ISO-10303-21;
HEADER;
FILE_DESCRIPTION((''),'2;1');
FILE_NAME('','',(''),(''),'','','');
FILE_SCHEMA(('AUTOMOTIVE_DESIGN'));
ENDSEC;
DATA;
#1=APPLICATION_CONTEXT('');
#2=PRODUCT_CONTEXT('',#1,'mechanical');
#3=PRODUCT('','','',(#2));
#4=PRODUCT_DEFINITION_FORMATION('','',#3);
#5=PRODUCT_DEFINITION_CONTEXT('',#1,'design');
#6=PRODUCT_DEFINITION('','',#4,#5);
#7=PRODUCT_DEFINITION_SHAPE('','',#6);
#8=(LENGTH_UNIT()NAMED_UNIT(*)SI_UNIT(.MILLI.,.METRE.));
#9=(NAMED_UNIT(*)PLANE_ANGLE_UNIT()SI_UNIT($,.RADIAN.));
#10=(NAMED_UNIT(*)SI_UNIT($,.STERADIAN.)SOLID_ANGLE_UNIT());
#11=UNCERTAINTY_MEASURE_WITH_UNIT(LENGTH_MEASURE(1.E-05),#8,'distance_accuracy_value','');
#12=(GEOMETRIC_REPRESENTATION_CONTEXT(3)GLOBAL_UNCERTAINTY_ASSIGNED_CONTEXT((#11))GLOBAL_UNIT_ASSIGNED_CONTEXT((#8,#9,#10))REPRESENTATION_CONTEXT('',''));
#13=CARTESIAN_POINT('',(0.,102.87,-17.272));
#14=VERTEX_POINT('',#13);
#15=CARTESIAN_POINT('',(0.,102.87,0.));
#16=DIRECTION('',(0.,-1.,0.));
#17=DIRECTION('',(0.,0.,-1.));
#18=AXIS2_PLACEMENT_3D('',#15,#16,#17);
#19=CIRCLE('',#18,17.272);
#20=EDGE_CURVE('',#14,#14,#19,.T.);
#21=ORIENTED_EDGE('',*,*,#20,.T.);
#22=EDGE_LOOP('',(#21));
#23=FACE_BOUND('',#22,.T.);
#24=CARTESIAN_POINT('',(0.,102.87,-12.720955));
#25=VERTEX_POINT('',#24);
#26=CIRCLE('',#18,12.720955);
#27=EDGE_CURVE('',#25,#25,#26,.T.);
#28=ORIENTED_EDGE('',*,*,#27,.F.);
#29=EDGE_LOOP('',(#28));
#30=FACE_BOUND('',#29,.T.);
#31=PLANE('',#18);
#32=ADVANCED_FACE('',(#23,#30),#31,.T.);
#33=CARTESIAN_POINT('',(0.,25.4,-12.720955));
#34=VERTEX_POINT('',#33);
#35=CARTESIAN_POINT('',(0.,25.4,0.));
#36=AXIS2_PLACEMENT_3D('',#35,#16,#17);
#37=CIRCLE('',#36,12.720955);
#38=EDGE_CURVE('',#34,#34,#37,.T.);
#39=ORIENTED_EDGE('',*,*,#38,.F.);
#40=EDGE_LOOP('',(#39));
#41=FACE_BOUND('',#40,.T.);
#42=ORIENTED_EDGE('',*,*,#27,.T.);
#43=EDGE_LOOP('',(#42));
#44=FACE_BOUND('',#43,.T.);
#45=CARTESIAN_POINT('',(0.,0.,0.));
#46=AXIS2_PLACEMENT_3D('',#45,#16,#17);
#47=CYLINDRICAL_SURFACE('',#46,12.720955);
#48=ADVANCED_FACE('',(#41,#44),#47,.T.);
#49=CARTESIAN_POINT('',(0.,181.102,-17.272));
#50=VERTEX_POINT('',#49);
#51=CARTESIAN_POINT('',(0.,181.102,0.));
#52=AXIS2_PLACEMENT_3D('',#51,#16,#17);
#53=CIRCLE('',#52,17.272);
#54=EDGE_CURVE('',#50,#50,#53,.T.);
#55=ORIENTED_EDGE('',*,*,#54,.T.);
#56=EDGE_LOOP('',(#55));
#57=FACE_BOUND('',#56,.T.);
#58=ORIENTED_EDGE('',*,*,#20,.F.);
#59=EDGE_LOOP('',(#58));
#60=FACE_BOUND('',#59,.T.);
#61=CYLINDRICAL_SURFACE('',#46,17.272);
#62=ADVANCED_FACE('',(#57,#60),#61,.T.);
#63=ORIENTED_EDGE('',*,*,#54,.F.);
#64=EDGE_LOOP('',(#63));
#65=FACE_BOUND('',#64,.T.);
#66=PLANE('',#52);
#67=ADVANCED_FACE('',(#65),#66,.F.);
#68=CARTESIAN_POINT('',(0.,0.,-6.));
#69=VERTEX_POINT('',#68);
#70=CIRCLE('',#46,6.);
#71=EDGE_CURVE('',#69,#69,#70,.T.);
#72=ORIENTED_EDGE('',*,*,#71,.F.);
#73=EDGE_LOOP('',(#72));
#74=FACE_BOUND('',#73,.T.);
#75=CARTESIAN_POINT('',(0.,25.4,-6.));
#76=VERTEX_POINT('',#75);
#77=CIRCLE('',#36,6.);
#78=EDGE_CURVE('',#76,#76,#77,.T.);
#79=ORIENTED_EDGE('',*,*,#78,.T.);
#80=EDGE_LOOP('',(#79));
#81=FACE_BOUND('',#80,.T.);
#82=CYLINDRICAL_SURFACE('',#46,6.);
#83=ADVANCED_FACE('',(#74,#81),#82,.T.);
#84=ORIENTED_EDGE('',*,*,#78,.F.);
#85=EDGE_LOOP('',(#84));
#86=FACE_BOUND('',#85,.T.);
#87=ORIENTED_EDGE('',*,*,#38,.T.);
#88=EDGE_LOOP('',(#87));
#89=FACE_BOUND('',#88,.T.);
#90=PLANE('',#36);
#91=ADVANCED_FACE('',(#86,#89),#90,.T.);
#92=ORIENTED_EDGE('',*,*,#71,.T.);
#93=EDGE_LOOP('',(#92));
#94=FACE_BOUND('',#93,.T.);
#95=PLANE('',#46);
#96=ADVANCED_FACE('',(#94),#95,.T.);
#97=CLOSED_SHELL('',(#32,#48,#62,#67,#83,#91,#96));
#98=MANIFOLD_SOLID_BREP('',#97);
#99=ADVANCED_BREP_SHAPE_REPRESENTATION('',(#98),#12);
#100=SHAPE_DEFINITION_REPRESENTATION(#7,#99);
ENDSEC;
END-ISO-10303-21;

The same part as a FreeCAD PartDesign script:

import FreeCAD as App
import Part
import Sketcher
Q = App.Units.Quantity


def add_polygon(sketch, points):
    """Adds a closed chain of lines whose ends are joined by coincident constraints."""
    first, n = sketch.GeometryCount, len(points)
    for a, b in zip(points, points[1:] + points[:1]):
        sketch.addGeometry(Part.LineSegment(App.Vector(*a, 0), App.Vector(*b, 0)), False)
    for i in range(n):
        sketch.addConstraint(Sketcher.Constraint("Coincident", first + i, 2, first + (i + 1) % n, 1))

doc = App.newDocument("Part")
params = doc.addObject("Spreadsheet::Sheet", "Params")
for row, (alias, value) in enumerate([
    ("sketch1_height", "1 in"),
    ("sketch1_width", "0.68 in"),
    ("sketch1_height2", "3.08 in"),
    ("sketch1_height3", "7.13 in"),
    ("revolution_angle", "360 deg"),
], start=1):
    params.set(f"A{row}", alias)
    params.set(f"B{row}", "=" + value)
    params.setAlias(f"B{row}", alias)

body = doc.addObject("PartDesign::Body", "Body")

# Sketch on XY plane
sketch1 = body.newObject("Sketcher::SketchObject", "Sketch")
sketch1.AttachmentSupport = (doc.getObject("XY_Plane"), [""])
sketch1.MapMode = "FlatFace"
add_polygon(sketch1, [(12.720955, 102.87), (17.272, 102.87), (17.272, 181.102), (0, 181.102), (0, 0), (6, 0), (6, 25.4), (12.720955, 25.4)])  # lines 0-7
sketch1.addConstraint([
    Sketcher.Constraint("Horizontal", 0),
    Sketcher.Constraint("Vertical", 1),
    Sketcher.Constraint("Horizontal", 2),
    Sketcher.Constraint("Vertical", 3),
    Sketcher.Constraint("Horizontal", 4),
    Sketcher.Constraint("Vertical", 5),
    Sketcher.Constraint("Horizontal", 6),
    Sketcher.Constraint("Vertical", 7),
    Sketcher.Constraint("Coincident", 3, 2, -1, 1),
    Sketcher.Constraint("DistanceY", 5, 1, 5, 2, Q("1 in")),
    Sketcher.Constraint("DistanceX", 2, 2, 2, 1, Q("0.68 in")),
    Sketcher.Constraint("DistanceY", 1, 1, 1, 2, Q("3.08 in")),
    Sketcher.Constraint("DistanceY", 3, 2, 3, 1, Q("7.13 in")),
    Sketcher.Constraint("DistanceX", 4, 1, 4, 2, Q("6 mm")),
    Sketcher.Constraint("DistanceX", 0, 1, 0, 2, Q("4.551045 mm")),
])
sketch1.setExpression("Constraints[17]", "Params.sketch1_height")
sketch1.setExpression("Constraints[18]", "Params.sketch1_width")
sketch1.setExpression("Constraints[19]", "Params.sketch1_height2")
sketch1.setExpression("Constraints[20]", "Params.sketch1_height3")
revolution = body.newObject("PartDesign::Revolution", "Revolution")
revolution.Profile = sketch1
revolution.ReferenceAxis = (sketch1, ["V_Axis"])
revolution.setExpression("Angle", "Params.revolution_angle")

doc.recompute()
